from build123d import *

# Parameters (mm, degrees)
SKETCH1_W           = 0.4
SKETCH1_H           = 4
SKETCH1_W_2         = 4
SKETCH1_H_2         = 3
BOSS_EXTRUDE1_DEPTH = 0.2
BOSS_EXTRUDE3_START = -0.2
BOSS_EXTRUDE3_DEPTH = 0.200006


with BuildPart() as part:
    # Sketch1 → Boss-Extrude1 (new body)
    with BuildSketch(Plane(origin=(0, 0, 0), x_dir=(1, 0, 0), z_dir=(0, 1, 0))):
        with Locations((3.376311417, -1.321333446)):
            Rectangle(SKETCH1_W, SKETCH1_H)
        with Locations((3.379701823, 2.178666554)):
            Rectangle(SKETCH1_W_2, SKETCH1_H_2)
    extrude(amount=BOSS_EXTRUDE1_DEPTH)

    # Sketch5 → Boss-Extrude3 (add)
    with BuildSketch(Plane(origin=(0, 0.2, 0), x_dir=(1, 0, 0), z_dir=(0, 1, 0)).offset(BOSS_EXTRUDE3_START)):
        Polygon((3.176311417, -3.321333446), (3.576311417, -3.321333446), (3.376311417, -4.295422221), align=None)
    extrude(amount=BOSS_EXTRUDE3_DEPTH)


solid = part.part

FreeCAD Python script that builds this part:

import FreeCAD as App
import Part
import Sketcher

V = App.Vector
Q = App.Units.Quantity

doc = App.newDocument("Part")
body = doc.addObject("PartDesign::Body", "Body")

# Sketch on XZ plane
sketch1 = body.newObject("Sketcher::SketchObject", "Sketch")
sketch1.AttachmentSupport = (doc.getObject("XZ_Plane"), [""])
sketch1.MapMode = "FlatFace"
sketch1.addGeometry([
    Part.LineSegment(V(3.18, -0.68, 0), V(3.18, 3.32, 0)),  # 0
    Part.LineSegment(V(3.18, 3.32, 0), V(3.58, 3.32, 0)),  # 1
    Part.LineSegment(V(3.58, 3.32, 0), V(3.58, -0.68, 0)),  # 2
    Part.LineSegment(V(3.58, -0.68, 0), V(5.38, -0.68, 0)),  # 3
    Part.LineSegment(V(5.38, -0.68, 0), V(5.38, -3.68, 0)),  # 4
    Part.LineSegment(V(5.38, -3.68, 0), V(1.38, -3.68, 0)),  # 5
    Part.LineSegment(V(1.38, -3.68, 0), V(1.38, -0.68, 0)),  # 6
    Part.LineSegment(V(1.38, -0.68, 0), V(3.18, -0.68, 0)),  # 7
], False)
sketch1.addConstraint([
    Sketcher.Constraint("Coincident", 0, 2, 1, 1),
    Sketcher.Constraint("Coincident", 1, 2, 2, 1),
    Sketcher.Constraint("Coincident", 2, 2, 3, 1),
    Sketcher.Constraint("Coincident", 3, 2, 4, 1),
    Sketcher.Constraint("Coincident", 4, 2, 5, 1),
    Sketcher.Constraint("Coincident", 5, 2, 6, 1),
    Sketcher.Constraint("Coincident", 6, 2, 7, 1),
    Sketcher.Constraint("Coincident", 7, 2, 0, 1),
    Sketcher.Constraint("Vertical", 0),
    Sketcher.Constraint("Horizontal", 1),
    Sketcher.Constraint("Vertical", 2),
    Sketcher.Constraint("Horizontal", 3),
    Sketcher.Constraint("Vertical", 4),
    Sketcher.Constraint("Horizontal", 5),
    Sketcher.Constraint("Vertical", 6),
    Sketcher.Constraint("Horizontal", 7),
    Sketcher.Constraint("Horizontal", 3, 2, 6, 2),
    Sketcher.Constraint("Equal", 5, 0),
    Sketcher.Constraint("DistanceX", 5, 2, 5, 1, Q("4 mm")),
    Sketcher.Constraint("DistanceY", 4, 2, 4, 1, Q("3 mm")),
    Sketcher.Constraint("DistanceX", 1, 1, 1, 2, Q("0.4 mm")),
    Sketcher.Constraint("DistanceX", 3, 1, 3, 2, Q("1.80339 mm")),
    Sketcher.Constraint("DistanceX", -1, 1, 3, 2, Q("5.379702 mm")),
    Sketcher.Constraint("DistanceY", -1, 1, 0, 2, Q("3.321333 mm")),
])
pad1 = body.newObject("PartDesign::Pad", "Pad")
pad1.Profile = sketch1
pad1.Length = 0.2
pad1.Reversed = True

# Sketch on XZ plane
sketch2 = body.newObject("Sketcher::SketchObject", "Sketch001")
sketch2.AttachmentSupport = (doc.getObject("XZ_Plane"), [""])
sketch2.MapMode = "FlatFace"
sketch2.addGeometry([
    Part.LineSegment(V(3.58, 3.32, 0), V(3.18, 3.32, 0)),
    Part.LineSegment(V(3.18, 3.32, 0), V(3.38, 4.3, 0)),
    Part.LineSegment(V(3.38, 4.3, 0), V(3.58, 3.32, 0)),
], False)
sketch2.addConstraint([
    Sketcher.Constraint("Coincident", 0, 2, 1, 1),
    Sketcher.Constraint("Coincident", 1, 2, 2, 1),
    Sketcher.Constraint("Coincident", 2, 2, 0, 1),
    Sketcher.Constraint("Horizontal", 0),
    Sketcher.Constraint("Equal", 1, 2),
    Sketcher.Constraint("DistanceX", 0, 2, 0, 1, Q("0.4 mm")),
    Sketcher.Constraint("Distance", 1, Q("0.994409 mm")),
    Sketcher.Constraint("DistanceX", -1, 1, 0, 2, Q("3.176311 mm")),
    Sketcher.Constraint("DistanceY", -1, 1, 0, 2, Q("3.321333 mm")),
])
pad2 = body.newObject("PartDesign::Pad", "Pad001")
pad2.Profile = sketch2
pad2.Length = 0.200006
pad2.Reversed = True

doc.recompute()
